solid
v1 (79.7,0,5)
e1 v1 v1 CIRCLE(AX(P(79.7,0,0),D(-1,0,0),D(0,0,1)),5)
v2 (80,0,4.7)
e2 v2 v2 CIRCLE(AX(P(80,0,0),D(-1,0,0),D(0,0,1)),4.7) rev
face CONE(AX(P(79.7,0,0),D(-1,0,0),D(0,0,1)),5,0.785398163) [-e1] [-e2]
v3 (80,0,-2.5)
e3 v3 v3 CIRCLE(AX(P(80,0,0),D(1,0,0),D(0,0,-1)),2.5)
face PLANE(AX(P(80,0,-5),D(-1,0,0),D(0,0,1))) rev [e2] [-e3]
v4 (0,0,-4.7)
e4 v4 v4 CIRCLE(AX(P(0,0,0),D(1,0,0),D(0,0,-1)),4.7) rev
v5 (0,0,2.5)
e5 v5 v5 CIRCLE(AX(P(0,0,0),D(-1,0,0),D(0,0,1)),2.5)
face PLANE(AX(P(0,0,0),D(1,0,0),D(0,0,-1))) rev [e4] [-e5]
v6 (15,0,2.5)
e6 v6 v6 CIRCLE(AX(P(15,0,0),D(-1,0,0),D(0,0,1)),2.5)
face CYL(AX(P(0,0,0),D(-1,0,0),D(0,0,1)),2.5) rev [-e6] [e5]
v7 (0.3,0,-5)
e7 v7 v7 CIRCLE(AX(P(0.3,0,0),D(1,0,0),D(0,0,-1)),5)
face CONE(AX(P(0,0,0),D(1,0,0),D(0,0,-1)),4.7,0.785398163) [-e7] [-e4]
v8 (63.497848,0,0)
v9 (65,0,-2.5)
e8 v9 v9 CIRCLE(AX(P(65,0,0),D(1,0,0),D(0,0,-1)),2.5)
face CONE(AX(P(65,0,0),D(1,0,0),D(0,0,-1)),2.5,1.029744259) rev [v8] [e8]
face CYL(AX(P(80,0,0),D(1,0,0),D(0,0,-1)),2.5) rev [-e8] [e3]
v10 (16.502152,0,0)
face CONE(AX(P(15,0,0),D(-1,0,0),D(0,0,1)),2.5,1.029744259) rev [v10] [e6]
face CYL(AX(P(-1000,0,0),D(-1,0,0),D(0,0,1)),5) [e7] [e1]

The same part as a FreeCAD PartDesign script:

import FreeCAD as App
import Part
import Sketcher

V = App.Vector


def edges_at(feature, points):
    """Names of the edges that pass closest to the given points."""
    edges = feature.Shape.Edges
    near = lambda p: min(range(len(edges)), key=lambda i: edges[i].distToShape(Part.Vertex(*p))[0])
    return sorted({f"Edge{near(p) + 1}" for p in points})

doc = App.newDocument("Part")
params = doc.addObject("Spreadsheet::Sheet", "Params")
for row, (alias, value) in enumerate([
    ("sketch1_width", "80 mm"),
    ("sketch1_height", "5 mm"),
    ("revolution_angle", "360 deg"),
    ("sketch2_diameter", "5 mm"),
    ("hole_diameter", "5 mm"),
    ("hole_depth", "15 mm"),
    ("sketch3_diameter", "5 mm"),
    ("hole2_diameter", "5 mm"),
    ("hole2_depth", "15 mm"),
    ("chamfer_size", "0.3 mm"),
], start=1):
    params.set(f"A{row}", alias)
    params.set(f"B{row}", "=" + value)
    params.setAlias(f"B{row}", alias)

body = doc.addObject("PartDesign::Body", "Body")

sketch1 = body.newObject("Sketcher::SketchObject", "Sketch")
sketch1.AttachmentSupport = (doc.getObject("XZ_Plane"), [""])
sketch1.MapMode = "FlatFace"
sketch1.addGeometry([
    Part.LineSegment(V(0, -5, 0), V(0, 0, 0)),
    Part.LineSegment(V(0, 0, 0), V(80, 0, 0)),
    Part.LineSegment(V(80, 0, 0), V(80, -5, 0)),
    Part.LineSegment(V(80, -5, 0), V(0, -5, 0)),
], False)
sketch1.addConstraint([
    Sketcher.Constraint("Coincident", 0, 2, 1, 1),
    Sketcher.Constraint("Coincident", 1, 2, 2, 1),
    Sketcher.Constraint("Coincident", 2, 2, 3, 1),
    Sketcher.Constraint("Coincident", 3, 2, 0, 1),
    Sketcher.Constraint("Vertical", 0),
    Sketcher.Constraint("Horizontal", 1),
    Sketcher.Constraint("Vertical", 2),
    Sketcher.Constraint("Horizontal", 3),
    Sketcher.Constraint("Coincident", 0, 2, -1, 1),
    Sketcher.Constraint("DistanceX", 1, 1, 1, 2, 80.0),
    Sketcher.Constraint("DistanceY", 0, 1, 0, 2, 5.0),
])
sketch1.setExpression("Constraints[9]", "Params.sketch1_width")
sketch1.setExpression("Constraints[10]", "Params.sketch1_height")
revolution = body.newObject("PartDesign::Revolution", "Revolution")
revolution.Profile = sketch1
revolution.ReferenceAxis = (sketch1, ["H_Axis"])
revolution.setExpression("Angle", "Params.revolution_angle")

sketch2 = body.newObject("Sketcher::SketchObject", "Sketch001")
sketch2.AttachmentSupport = (doc.getObject("YZ_Plane"), [""])
sketch2.MapMode = "FlatFace"
sketch2.AttachmentOffset = App.Placement(V(0, 0, 80), App.Rotation())
sketch2.addGeometry(Part.Circle(V(0, 0, 0), V(0, 0, 1), 2.5), False)
sketch2.addConstraint([
    Sketcher.Constraint("Coincident", 0, 3, -1, 1),
    Sketcher.Constraint("Diameter", 0, 5.0),
])
sketch2.setExpression("Constraints[1]", "Params.sketch2_diameter")
doc.recompute()
hole = body.newObject("PartDesign::Hole", "Hole")
hole.Profile = sketch2
hole.ThreadType = "None"
hole.setExpression("Diameter", "Params.hole_diameter")
hole.DepthType = "Dimension"
hole.setExpression("Depth", "Params.hole_depth")
hole.DrillPoint = "Angled"
hole.DrillPointAngle = 118

sketch3 = body.newObject("Sketcher::SketchObject", "Sketch002")
sketch3.AttachmentSupport = (doc.getObject("YZ_Plane"), [""])
sketch3.MapMode = "FlatFace"
sketch3.addGeometry(Part.Circle(V(0, 0, 0), V(0, 0, 1), 2.5), False)
sketch3.addConstraint([
    Sketcher.Constraint("Coincident", 0, 3, -1, 1),
    Sketcher.Constraint("Diameter", 0, 5.0),
])
sketch3.setExpression("Constraints[1]", "Params.sketch3_diameter")
doc.recompute()
hole2 = body.newObject("PartDesign::Hole", "Hole001")
hole2.Profile = sketch3
hole2.ThreadType = "None"
hole2.setExpression("Diameter", "Params.hole2_diameter")
hole2.DepthType = "Dimension"
hole2.setExpression("Depth", "Params.hole2_depth")
hole2.DrillPoint = "Angled"
hole2.DrillPointAngle = 118
hole2.Reversed = True
doc.recompute()

chamfer = body.newObject("PartDesign::Chamfer", "Chamfer")
chamfer.Base = (hole2, edges_at(hole2, [(80, 0, -5), (0, 0, -5)]))
chamfer.setExpression("Size", "Params.chamfer_size")

doc.recompute()
